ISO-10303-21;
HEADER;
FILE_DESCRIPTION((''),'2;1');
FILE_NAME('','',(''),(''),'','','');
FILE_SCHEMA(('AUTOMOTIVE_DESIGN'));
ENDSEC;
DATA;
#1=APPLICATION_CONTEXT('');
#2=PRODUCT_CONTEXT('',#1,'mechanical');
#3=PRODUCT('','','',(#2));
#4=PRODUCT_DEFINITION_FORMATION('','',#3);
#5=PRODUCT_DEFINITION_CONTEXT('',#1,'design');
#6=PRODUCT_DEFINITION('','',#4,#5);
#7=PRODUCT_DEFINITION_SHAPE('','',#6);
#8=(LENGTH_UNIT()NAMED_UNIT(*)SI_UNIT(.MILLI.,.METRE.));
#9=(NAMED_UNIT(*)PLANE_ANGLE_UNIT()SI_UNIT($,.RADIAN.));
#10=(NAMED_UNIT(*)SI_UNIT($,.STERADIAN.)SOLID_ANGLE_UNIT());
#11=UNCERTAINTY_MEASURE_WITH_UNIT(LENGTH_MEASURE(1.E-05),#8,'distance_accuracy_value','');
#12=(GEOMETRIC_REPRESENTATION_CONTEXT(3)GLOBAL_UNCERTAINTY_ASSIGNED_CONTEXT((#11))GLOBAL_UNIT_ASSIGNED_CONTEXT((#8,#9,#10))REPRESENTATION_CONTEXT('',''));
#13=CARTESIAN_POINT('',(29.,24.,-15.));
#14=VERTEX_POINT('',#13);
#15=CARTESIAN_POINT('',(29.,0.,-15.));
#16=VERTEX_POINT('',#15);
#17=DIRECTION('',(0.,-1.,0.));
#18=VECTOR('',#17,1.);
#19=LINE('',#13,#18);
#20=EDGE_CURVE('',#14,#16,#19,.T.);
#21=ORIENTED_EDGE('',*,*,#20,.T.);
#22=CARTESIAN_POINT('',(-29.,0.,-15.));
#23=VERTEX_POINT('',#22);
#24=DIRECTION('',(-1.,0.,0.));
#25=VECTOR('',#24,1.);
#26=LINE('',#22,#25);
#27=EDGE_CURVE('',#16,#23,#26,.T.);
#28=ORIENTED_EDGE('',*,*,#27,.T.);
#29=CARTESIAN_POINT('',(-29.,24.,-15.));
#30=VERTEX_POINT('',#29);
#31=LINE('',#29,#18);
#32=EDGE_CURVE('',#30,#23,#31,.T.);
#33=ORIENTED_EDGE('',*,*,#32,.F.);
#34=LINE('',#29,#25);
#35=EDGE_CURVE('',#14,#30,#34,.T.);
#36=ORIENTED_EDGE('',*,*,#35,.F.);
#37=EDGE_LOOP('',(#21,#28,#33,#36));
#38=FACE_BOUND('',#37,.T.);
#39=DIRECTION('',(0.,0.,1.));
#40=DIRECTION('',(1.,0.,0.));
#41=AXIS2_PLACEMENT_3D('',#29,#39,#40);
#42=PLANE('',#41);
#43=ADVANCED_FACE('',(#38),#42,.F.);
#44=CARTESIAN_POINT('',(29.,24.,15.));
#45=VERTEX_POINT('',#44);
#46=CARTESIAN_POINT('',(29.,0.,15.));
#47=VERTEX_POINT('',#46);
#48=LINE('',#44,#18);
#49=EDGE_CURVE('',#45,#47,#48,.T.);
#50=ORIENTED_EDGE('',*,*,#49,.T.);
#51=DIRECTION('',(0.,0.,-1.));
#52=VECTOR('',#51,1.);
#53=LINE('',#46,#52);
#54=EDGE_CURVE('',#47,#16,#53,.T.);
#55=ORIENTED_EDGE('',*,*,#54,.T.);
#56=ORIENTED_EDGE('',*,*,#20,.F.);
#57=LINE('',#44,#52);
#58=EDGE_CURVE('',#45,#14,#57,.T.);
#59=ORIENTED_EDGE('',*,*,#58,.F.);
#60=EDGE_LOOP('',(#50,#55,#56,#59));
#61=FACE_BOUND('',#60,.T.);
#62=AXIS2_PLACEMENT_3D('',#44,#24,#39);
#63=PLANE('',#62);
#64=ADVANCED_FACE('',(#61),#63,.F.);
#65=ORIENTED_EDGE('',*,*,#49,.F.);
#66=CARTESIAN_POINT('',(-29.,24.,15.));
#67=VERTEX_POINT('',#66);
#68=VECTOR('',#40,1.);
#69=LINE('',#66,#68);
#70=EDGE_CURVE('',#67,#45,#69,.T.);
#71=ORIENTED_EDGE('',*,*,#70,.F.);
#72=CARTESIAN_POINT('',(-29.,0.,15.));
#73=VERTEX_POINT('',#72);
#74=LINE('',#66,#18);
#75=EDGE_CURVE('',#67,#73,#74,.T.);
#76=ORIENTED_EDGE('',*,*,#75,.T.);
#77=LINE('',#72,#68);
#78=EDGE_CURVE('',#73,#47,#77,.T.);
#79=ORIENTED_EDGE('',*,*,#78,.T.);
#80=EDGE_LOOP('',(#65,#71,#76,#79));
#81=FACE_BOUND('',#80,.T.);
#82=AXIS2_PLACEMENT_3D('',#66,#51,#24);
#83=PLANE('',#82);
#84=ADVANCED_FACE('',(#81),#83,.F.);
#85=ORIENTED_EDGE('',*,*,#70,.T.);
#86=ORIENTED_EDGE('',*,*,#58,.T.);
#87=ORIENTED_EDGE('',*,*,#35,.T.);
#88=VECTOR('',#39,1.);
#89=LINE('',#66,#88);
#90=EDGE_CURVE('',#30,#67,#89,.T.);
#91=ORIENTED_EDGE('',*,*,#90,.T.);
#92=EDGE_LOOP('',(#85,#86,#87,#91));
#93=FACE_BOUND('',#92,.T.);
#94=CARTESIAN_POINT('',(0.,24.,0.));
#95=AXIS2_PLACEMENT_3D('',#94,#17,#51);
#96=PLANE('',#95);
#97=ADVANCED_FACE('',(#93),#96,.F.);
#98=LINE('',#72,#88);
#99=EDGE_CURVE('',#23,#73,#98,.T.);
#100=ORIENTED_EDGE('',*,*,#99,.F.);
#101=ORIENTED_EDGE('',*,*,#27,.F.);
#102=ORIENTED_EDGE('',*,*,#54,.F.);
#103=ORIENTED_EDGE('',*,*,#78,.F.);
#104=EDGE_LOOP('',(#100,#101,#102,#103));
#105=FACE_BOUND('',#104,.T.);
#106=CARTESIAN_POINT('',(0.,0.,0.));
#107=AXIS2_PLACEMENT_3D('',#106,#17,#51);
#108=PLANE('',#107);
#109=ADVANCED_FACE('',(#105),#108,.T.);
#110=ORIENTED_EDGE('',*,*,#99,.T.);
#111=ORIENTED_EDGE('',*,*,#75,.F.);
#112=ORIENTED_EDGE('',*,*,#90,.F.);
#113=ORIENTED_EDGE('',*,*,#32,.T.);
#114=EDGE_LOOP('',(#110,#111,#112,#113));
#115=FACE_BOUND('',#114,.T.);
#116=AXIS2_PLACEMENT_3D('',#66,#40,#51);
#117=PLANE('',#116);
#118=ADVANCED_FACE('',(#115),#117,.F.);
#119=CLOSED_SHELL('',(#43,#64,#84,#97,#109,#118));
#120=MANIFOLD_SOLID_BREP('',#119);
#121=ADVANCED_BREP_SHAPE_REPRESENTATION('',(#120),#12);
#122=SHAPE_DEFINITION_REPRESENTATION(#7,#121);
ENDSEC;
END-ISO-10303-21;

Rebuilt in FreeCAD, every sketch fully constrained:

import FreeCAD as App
import Part
import Sketcher

V = App.Vector


def add_polygon(sketch, points):
    """Adds a closed chain of lines whose ends are joined by coincident constraints."""
    first, n = sketch.GeometryCount, len(points)
    for a, b in zip(points, points[1:] + points[:1]):
        sketch.addGeometry(Part.LineSegment(App.Vector(*a, 0), App.Vector(*b, 0)), False)
    for i in range(n):
        sketch.addConstraint(Sketcher.Constraint("Coincident", first + i, 2, first + (i + 1) % n, 1))

doc = App.newDocument("Part")
body = doc.addObject("PartDesign::Body", "Body")

sketch1 = doc.addObject("Sketcher::SketchObject", "Sketch")
body.addObject(sketch1)
sketch1.AttachmentSupport = (doc.XZ_Plane, [""])
sketch1.MapMode = "FlatFace"
add_polygon(sketch1, [(-29, -15), (-29, 15), (29, 15), (29, -15)])
sketch1.addConstraint([
    Sketcher.Constraint("Vertical", 0),
    Sketcher.Constraint("Horizontal", 1),
    Sketcher.Constraint("Vertical", 2),
    Sketcher.Constraint("Horizontal", 3),
    Sketcher.Constraint("Symmetric", 0, 2, 2, 2, -1, 1),
    Sketcher.Constraint("DistanceX", 1, 1, 1, 2, 58.0),
    Sketcher.Constraint("DistanceY", 0, 1, 0, 2, 30.0),
])
pad1 = doc.addObject("PartDesign::Pad", "Pad")
body.addObject(pad1)
pad1.Profile = sketch1
pad1.Length = 24
pad1.Reversed = True

doc.recompute()
